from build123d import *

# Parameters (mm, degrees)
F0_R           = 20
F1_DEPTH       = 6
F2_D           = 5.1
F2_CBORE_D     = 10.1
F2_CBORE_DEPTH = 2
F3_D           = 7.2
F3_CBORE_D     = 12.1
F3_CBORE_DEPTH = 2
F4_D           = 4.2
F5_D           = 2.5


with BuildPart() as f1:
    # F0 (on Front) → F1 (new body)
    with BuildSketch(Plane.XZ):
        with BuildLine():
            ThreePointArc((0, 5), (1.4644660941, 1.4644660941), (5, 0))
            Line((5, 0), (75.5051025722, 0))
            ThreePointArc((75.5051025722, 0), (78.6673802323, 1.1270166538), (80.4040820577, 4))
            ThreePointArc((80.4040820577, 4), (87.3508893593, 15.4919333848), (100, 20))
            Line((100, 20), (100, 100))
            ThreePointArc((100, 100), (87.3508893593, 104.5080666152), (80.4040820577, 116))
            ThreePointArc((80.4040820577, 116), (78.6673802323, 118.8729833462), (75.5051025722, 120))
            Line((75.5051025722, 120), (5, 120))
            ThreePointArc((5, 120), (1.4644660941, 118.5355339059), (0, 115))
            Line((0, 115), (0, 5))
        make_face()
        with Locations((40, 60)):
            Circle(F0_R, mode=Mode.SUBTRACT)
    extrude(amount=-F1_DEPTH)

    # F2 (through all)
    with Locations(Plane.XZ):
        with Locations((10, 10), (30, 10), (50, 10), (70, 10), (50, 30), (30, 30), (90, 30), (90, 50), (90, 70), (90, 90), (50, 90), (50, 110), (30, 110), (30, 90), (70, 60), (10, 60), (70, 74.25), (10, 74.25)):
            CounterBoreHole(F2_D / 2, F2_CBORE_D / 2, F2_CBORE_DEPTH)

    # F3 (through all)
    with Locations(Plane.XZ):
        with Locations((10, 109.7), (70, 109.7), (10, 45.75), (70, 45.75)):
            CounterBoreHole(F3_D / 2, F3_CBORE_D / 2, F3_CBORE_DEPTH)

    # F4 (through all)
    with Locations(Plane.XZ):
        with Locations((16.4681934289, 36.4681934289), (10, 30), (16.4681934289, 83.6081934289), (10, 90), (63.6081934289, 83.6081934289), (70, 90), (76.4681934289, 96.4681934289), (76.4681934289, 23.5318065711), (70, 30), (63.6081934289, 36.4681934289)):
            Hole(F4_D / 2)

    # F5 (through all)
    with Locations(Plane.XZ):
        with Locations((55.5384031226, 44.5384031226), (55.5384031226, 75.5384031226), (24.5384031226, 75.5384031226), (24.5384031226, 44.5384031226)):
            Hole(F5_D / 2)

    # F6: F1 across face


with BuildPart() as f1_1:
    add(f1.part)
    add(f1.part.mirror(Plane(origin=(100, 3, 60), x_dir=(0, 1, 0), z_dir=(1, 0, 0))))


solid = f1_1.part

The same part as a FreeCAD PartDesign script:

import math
import FreeCAD as App
import Part
import Sketcher
Q = App.Units.Quantity

doc = App.newDocument("Part")
body = doc.addObject("PartDesign::Body", "Body")

# Sketch on XZ plane
sketch1 = body.newObject("Sketcher::SketchObject", "Sketch")
sketch1.AttachmentSupport = (doc.getObject("XZ_Plane"), [""])
sketch1.MapMode = "FlatFace"
sketch1.addGeometry([
    Part.ArcOfCircle(Part.Circle(App.Vector(5, 5, 0), App.Vector(0, 0, 1), 5), math.radians(180), math.radians(270)),  # 0
    Part.LineSegment(App.Vector(5, 0, 0), App.Vector(76, 0, 0)),  # 1
    Part.ArcOfCircle(Part.Circle(App.Vector(76, 5, 0), App.Vector(0, 0, 1), 5), math.radians(-90), math.radians(-12)),  # 2
    Part.ArcOfCircle(Part.Circle(App.Vector(100, 0, 0), App.Vector(0, 0, 1), 20), math.radians(90), math.radians(168)),  # 3
    Part.LineSegment(App.Vector(100, 20, 0), App.Vector(100, 100, 0)),  # 4
    Part.ArcOfCircle(Part.Circle(App.Vector(100, 120, 0), App.Vector(0, 0, 1), 20), math.radians(-168), math.radians(-90)),  # 5
    Part.ArcOfCircle(Part.Circle(App.Vector(76, 115, 0), App.Vector(0, 0, 1), 5), math.radians(12), math.radians(90)),  # 6
    Part.LineSegment(App.Vector(76, 120, 0), App.Vector(5, 120, 0)),  # 7
    Part.ArcOfCircle(Part.Circle(App.Vector(5, 115, 0), App.Vector(0, 0, 1), 5), math.radians(90), math.radians(180)),  # 8
    Part.LineSegment(App.Vector(0, 115, 0), App.Vector(0, 5, 0)),  # 9
    Part.Circle(App.Vector(40, 60, 0), App.Vector(0, 0, 1), 20),  # 10
], False)
sketch1.addConstraint([
    Sketcher.Constraint("Tangent", 0, 2, 1, 1),
    Sketcher.Constraint("Tangent", 1, 2, 2, 1),
    Sketcher.Constraint("Tangent", 2, 2, 3, 2),
    Sketcher.Constraint("Coincident", 3, 1, 4, 1),
    Sketcher.Constraint("Coincident", 4, 2, 5, 2),
    Sketcher.Constraint("Tangent", 5, 1, 6, 1),
    Sketcher.Constraint("Tangent", 6, 2, 7, 1),
    Sketcher.Constraint("Tangent", 7, 2, 8, 1),
    Sketcher.Constraint("Tangent", 8, 2, 9, 1),
    Sketcher.Constraint("Tangent", 9, 2, 0, 1),
    Sketcher.Constraint("Horizontal", 1),
    Sketcher.Constraint("Vertical", 4),
    Sketcher.Constraint("Horizontal", 7),
    Sketcher.Constraint("Vertical", 9),
    Sketcher.Constraint("Equal", 0, 2),
    Sketcher.Constraint("Equal", 3, 5),
    Sketcher.Constraint("Equal", 2, 6),
    Sketcher.Constraint("Equal", 6, 8),
    Sketcher.Constraint("Equal", 5, 10),
    Sketcher.Constraint("PointOnObject", 3, 3, -1),
    Sketcher.Constraint("PointOnObject", 0, 2, -1),
    Sketcher.Constraint("PointOnObject", 8, 2, -2),
    Sketcher.Constraint("Horizontal", 5, 3, 6, 2),
    Sketcher.Constraint("Vertical", 3, 3, 5, 3),
    Sketcher.Constraint("Vertical", 5, 3, 3, 1),
    Sketcher.Constraint("Diameter", 10, Q("40 mm")),
    Sketcher.Constraint("Radius", 0, Q("5 mm")),
    Sketcher.Constraint("DistanceY", 4, 1, 4, 2, Q("80 mm")),
    Sketcher.Constraint("DistanceX", -1, 1, 3, 3, Q("100 mm")),
    Sketcher.Constraint("DistanceX", -1, 1, 10, 3, Q("40 mm")),
    Sketcher.Constraint("DistanceY", -1, 1, 10, 3, Q("60 mm")),
])
pad1 = body.newObject("PartDesign::Pad", "Pad")
pad1.Profile = sketch1
pad1.Length = 6
pad1.Reversed = True

# Sketch on XZ plane
sketch2 = body.newObject("Sketcher::SketchObject", "Sketch001")
sketch2.AttachmentSupport = (doc.getObject("XZ_Plane"), [""])
sketch2.MapMode = "FlatFace"
sketch2.addGeometry([
    Part.Circle(App.Vector(10, 10, 0), App.Vector(0, 0, 1), 2.5),  # 0
    Part.Circle(App.Vector(30, 10, 0), App.Vector(0, 0, 1), 2.5),  # 1
    Part.Circle(App.Vector(50, 10, 0), App.Vector(0, 0, 1), 2.5),  # 2
    Part.Circle(App.Vector(70, 10, 0), App.Vector(0, 0, 1), 2.5),  # 3
    Part.Circle(App.Vector(50, 30, 0), App.Vector(0, 0, 1), 2.5),  # 4
    Part.Circle(App.Vector(30, 30, 0), App.Vector(0, 0, 1), 2.5),  # 5
    Part.Circle(App.Vector(90, 30, 0), App.Vector(0, 0, 1), 2.5),  # 6
    Part.Circle(App.Vector(90, 50, 0), App.Vector(0, 0, 1), 2.5),  # 7
    Part.Circle(App.Vector(90, 70, 0), App.Vector(0, 0, 1), 2.5),  # 8
    Part.Circle(App.Vector(90, 90, 0), App.Vector(0, 0, 1), 2.5),  # 9
    Part.Circle(App.Vector(50, 90, 0), App.Vector(0, 0, 1), 2.5),  # 10
    Part.Circle(App.Vector(50, 110, 0), App.Vector(0, 0, 1), 2.5),  # 11
    Part.Circle(App.Vector(30, 110, 0), App.Vector(0, 0, 1), 2.5),  # 12
    Part.Circle(App.Vector(30, 90, 0), App.Vector(0, 0, 1), 2.5),  # 13
    Part.Circle(App.Vector(70, 60, 0), App.Vector(0, 0, 1), 2.5),  # 14
    Part.Circle(App.Vector(10, 60, 0), App.Vector(0, 0, 1), 2.5),  # 15
    Part.Circle(App.Vector(70, 74.2, 0), App.Vector(0, 0, 1), 2.5),  # 16
    Part.Circle(App.Vector(10, 74.2, 0), App.Vector(0, 0, 1), 2.5),  # 17
], False)
sketch2.addConstraint([
    Sketcher.Constraint("Equal", 0, 1),
    Sketcher.Constraint("Equal", 1, 2),
    Sketcher.Constraint("Equal", 2, 3),
    Sketcher.Constraint("Equal", 3, 4),
    Sketcher.Constraint("Equal", 4, 5),
    Sketcher.Constraint("Equal", 5, 6),
    Sketcher.Constraint("Equal", 6, 7),
    Sketcher.Constraint("Equal", 7, 8),
    Sketcher.Constraint("Equal", 8, 9),
    Sketcher.Constraint("Equal", 9, 10),
    Sketcher.Constraint("Equal", 10, 11),
    Sketcher.Constraint("Equal", 11, 12),
    Sketcher.Constraint("Equal", 12, 13),
    Sketcher.Constraint("Equal", 13, 14),
    Sketcher.Constraint("Equal", 14, 15),
    Sketcher.Constraint("Equal", 15, 16),
    Sketcher.Constraint("Equal", 16, 17),
    Sketcher.Constraint("Horizontal", 0, 3, 1, 3),
    Sketcher.Constraint("Horizontal", 1, 3, 2, 3),
    Sketcher.Constraint("Horizontal", 2, 3, 3, 3),
    Sketcher.Constraint("Horizontal", 4, 3, 5, 3),
    Sketcher.Constraint("Horizontal", 5, 3, 6, 3),
    Sketcher.Constraint("Horizontal", 9, 3, 10, 3),
    Sketcher.Constraint("Horizontal", 11, 3, 12, 3),
    Sketcher.Constraint("Horizontal", 10, 3, 13, 3),
    Sketcher.Constraint("Horizontal", 14, 3, 15, 3),
    Sketcher.Constraint("Horizontal", 16, 3, 17, 3),
    Sketcher.Constraint("Vertical", 2, 3, 4, 3),
    Sketcher.Constraint("Vertical", 1, 3, 5, 3),
    Sketcher.Constraint("Vertical", 6, 3, 7, 3),
    Sketcher.Constraint("Vertical", 7, 3, 8, 3),
    Sketcher.Constraint("Vertical", 8, 3, 9, 3),
    Sketcher.Constraint("Vertical", 4, 3, 10, 3),
    Sketcher.Constraint("Vertical", 10, 3, 11, 3),
    Sketcher.Constraint("Vertical", 5, 3, 12, 3),
    Sketcher.Constraint("Vertical", 12, 3, 13, 3),
    Sketcher.Constraint("Vertical", 3, 3, 14, 3),
    Sketcher.Constraint("Vertical", 0, 3, 15, 3),
    Sketcher.Constraint("Vertical", 14, 3, 16, 3),
    Sketcher.Constraint("Vertical", 15, 3, 17, 3),
    Sketcher.Constraint("Diameter", 0, Q("5.1 mm")),
    Sketcher.Constraint("DistanceX", -1, 1, 0, 3, Q("10 mm")),
    Sketcher.Constraint("DistanceY", -1, 1, 0, 3, Q("10 mm")),
    Sketcher.Constraint("DistanceX", -1, 1, 1, 3, Q("30 mm")),
    Sketcher.Constraint("DistanceX", -1, 1, 2, 3, Q("50 mm")),
    Sketcher.Constraint("DistanceX", -1, 1, 3, 3, Q("70 mm")),
    Sketcher.Constraint("DistanceY", -1, 1, 4, 3, Q("30 mm")),
    Sketcher.Constraint("DistanceX", -1, 1, 6, 3, Q("90 mm")),
    Sketcher.Constraint("DistanceY", -1, 1, 7, 3, Q("50 mm")),
    Sketcher.Constraint("DistanceY", -1, 1, 8, 3, Q("70 mm")),
    Sketcher.Constraint("DistanceY", -1, 1, 9, 3, Q("90 mm")),
    Sketcher.Constraint("DistanceY", -1, 1, 11, 3, Q("110 mm")),
    Sketcher.Constraint("DistanceY", -1, 1, 14, 3, Q("60 mm")),
    Sketcher.Constraint("DistanceY", -1, 1, 16, 3, Q("74.25 mm")),
])
doc.recompute()
hole = body.newObject("PartDesign::Hole", "Hole")
hole.Profile = sketch2
hole.ThreadType = "None"
hole.Diameter = 5.1
hole.DepthType = "ThroughAll"
hole.HoleCutType = "Counterbore"
hole.HoleCutDiameter = 10.1
hole.HoleCutDepth = 2

# Sketch on XZ plane
sketch3 = body.newObject("Sketcher::SketchObject", "Sketch002")
sketch3.AttachmentSupport = (doc.getObject("XZ_Plane"), [""])
sketch3.MapMode = "FlatFace"
sketch3.addGeometry([
    Part.Circle(App.Vector(10, 109.7, 0), App.Vector(0, 0, 1), 3.6),
    Part.Circle(App.Vector(70, 109.7, 0), App.Vector(0, 0, 1), 3.6),
    Part.Circle(App.Vector(10, 45.8, 0), App.Vector(0, 0, 1), 3.6),
    Part.Circle(App.Vector(70, 45.8, 0), App.Vector(0, 0, 1), 3.6),
], False)
sketch3.addConstraint([
    Sketcher.Constraint("Equal", 0, 1),
    Sketcher.Constraint("Equal", 1, 2),
    Sketcher.Constraint("Equal", 2, 3),
    Sketcher.Constraint("Horizontal", 0, 3, 1, 3),
    Sketcher.Constraint("Horizontal", 2, 3, 3, 3),
    Sketcher.Constraint("Vertical", 0, 3, 2, 3),
    Sketcher.Constraint("Vertical", 1, 3, 3, 3),
    Sketcher.Constraint("Diameter", 0, Q("7.2 mm")),
    Sketcher.Constraint("DistanceX", -1, 1, 0, 3, Q("10 mm")),
    Sketcher.Constraint("DistanceX", -1, 1, 1, 3, Q("70 mm")),
    Sketcher.Constraint("DistanceY", -1, 1, 0, 3, Q("109.7 mm")),
    Sketcher.Constraint("DistanceY", -1, 1, 2, 3, Q("45.75 mm")),
])
doc.recompute()
hole2 = body.newObject("PartDesign::Hole", "Hole001")
hole2.Profile = sketch3
hole2.ThreadType = "None"
hole2.Diameter = 7.2
hole2.DepthType = "ThroughAll"
hole2.HoleCutType = "Counterbore"
hole2.HoleCutDiameter = 12.1
hole2.HoleCutDepth = 2

# Sketch on XZ plane
sketch4 = body.newObject("Sketcher::SketchObject", "Sketch003")
sketch4.AttachmentSupport = (doc.getObject("XZ_Plane"), [""])
sketch4.MapMode = "FlatFace"
sketch4.addGeometry([
    Part.Circle(App.Vector(16.5, 36.5, 0), App.Vector(0, 0, 1), 2.1),  # 0
    Part.Circle(App.Vector(10, 30, 0), App.Vector(0, 0, 1), 2.1),  # 1
    Part.Circle(App.Vector(16.5, 83.6, 0), App.Vector(0, 0, 1), 2.1),  # 2
    Part.Circle(App.Vector(10, 90, 0), App.Vector(0, 0, 1), 2.1),  # 3
    Part.Circle(App.Vector(63.6, 83.6, 0), App.Vector(0, 0, 1), 2.1),  # 4
    Part.Circle(App.Vector(70, 90, 0), App.Vector(0, 0, 1), 2.1),  # 5
    Part.Circle(App.Vector(76.5, 96.5, 0), App.Vector(0, 0, 1), 2.1),  # 6
    Part.Circle(App.Vector(76.5, 23.5, 0), App.Vector(0, 0, 1), 2.1),  # 7
    Part.Circle(App.Vector(70, 30, 0), App.Vector(0, 0, 1), 2.1),  # 8
    Part.Circle(App.Vector(63.6, 36.5, 0), App.Vector(0, 0, 1), 2.1),  # 9
], False)
sketch4.addConstraint([
    Sketcher.Constraint("Equal", 0, 1),
    Sketcher.Constraint("Equal", 1, 2),
    Sketcher.Constraint("Equal", 2, 3),
    Sketcher.Constraint("Equal", 3, 4),
    Sketcher.Constraint("Equal", 4, 5),
    Sketcher.Constraint("Equal", 5, 6),
    Sketcher.Constraint("Equal", 6, 7),
    Sketcher.Constraint("Equal", 7, 8),
    Sketcher.Constraint("Equal", 8, 9),
    Sketcher.Constraint("Horizontal", 2, 3, 4, 3),
    Sketcher.Constraint("Horizontal", 3, 3, 5, 3),
    Sketcher.Constraint("Horizontal", 1, 3, 8, 3),
    Sketcher.Constraint("Horizontal", 0, 3, 9, 3),
    Sketcher.Constraint("Vertical", 0, 3, 2, 3),
    Sketcher.Constraint("Vertical", 1, 3, 3, 3),
    Sketcher.Constraint("Vertical", 6, 3, 7, 3),
    Sketcher.Constraint("Vertical", 5, 3, 8, 3),
    Sketcher.Constraint("Vertical", 4, 3, 9, 3),
    Sketcher.Constraint("Diameter", 0, Q("4.2 mm")),
    Sketcher.Constraint("DistanceX", -1, 1, 1, 3, Q("10 mm")),
    Sketcher.Constraint("DistanceY", -1, 1, 1, 3, Q("30 mm")),
    Sketcher.Constraint("DistanceY", -1, 1, 3, 3, Q("90 mm")),
    Sketcher.Constraint("DistanceX", -1, 1, 5, 3, Q("70 mm")),
    Sketcher.Constraint("DistanceX", 2, 3, 6, 3, Q("60 mm")),
    Sketcher.Constraint("DistanceY", 0, 3, 6, 3, Q("60 mm")),
    Sketcher.Constraint("DistanceY", 0, 3, 2, 3, Q("47.14 mm")),
    Sketcher.Constraint("DistanceX", 2, 3, 4, 3, Q("47.14 mm")),
    Sketcher.Constraint("DistanceX", -1, 1, 0, 3, Q("16.468193 mm")),
    Sketcher.Constraint("DistanceY", -1, 1, 0, 3, Q("36.468193 mm")),
    Sketcher.Constraint("DistanceY", -1, 1, 7, 3, Q("23.531807 mm")),
])
doc.recompute()
hole3 = body.newObject("PartDesign::Hole", "Hole002")
hole3.Profile = sketch4
hole3.ThreadType = "None"
hole3.Diameter = 4.2
hole3.DepthType = "ThroughAll"

# Sketch on XZ plane
sketch5 = body.newObject("Sketcher::SketchObject", "Sketch004")
sketch5.AttachmentSupport = (doc.getObject("XZ_Plane"), [""])
sketch5.MapMode = "FlatFace"
sketch5.addGeometry([
    Part.Circle(App.Vector(55.5, 44.5, 0), App.Vector(0, 0, 1), 1.2),
    Part.Circle(App.Vector(55.5, 75.5, 0), App.Vector(0, 0, 1), 1.2),
    Part.Circle(App.Vector(24.5, 75.5, 0), App.Vector(0, 0, 1), 1.2),
    Part.Circle(App.Vector(24.5, 44.5, 0), App.Vector(0, 0, 1), 1.2),
], False)
sketch5.addConstraint([
    Sketcher.Constraint("Equal", 0, 1),
    Sketcher.Constraint("Equal", 1, 2),
    Sketcher.Constraint("Equal", 2, 3),
    Sketcher.Constraint("Horizontal", 1, 3, 2, 3),
    Sketcher.Constraint("Horizontal", 0, 3, 3, 3),
    Sketcher.Constraint("Vertical", 0, 3, 1, 3),
    Sketcher.Constraint("Vertical", 2, 3, 3, 3),
    Sketcher.Constraint("Diameter", 0, Q("2.5 mm")),
    Sketcher.Constraint("DistanceY", 0, 3, 1, 3, Q("31 mm")),
    Sketcher.Constraint("DistanceX", 2, 3, 1, 3, Q("31 mm")),
    Sketcher.Constraint("DistanceX", -1, 1, 0, 3, Q("55.538403 mm")),
    Sketcher.Constraint("DistanceY", -1, 1, 0, 3, Q("44.538403 mm")),
])
doc.recompute()
hole4 = body.newObject("PartDesign::Hole", "Hole003")
hole4.Profile = sketch5
hole4.ThreadType = "None"
hole4.Diameter = 2.5
hole4.DepthType = "ThroughAll"
body2 = doc.addObject("PartDesign::Body", "Body001")
doc.recompute()

body2.BaseFeature = body
doc.recompute()

mirroring = doc.addObject("Part::Mirroring", "Mirroring")
mirroring.Source = body
mirroring.Base = App.Vector(100, 3, 60)
mirroring.Normal = App.Vector(1, 0, 0)
body3 = doc.addObject("PartDesign::Body", "Body002")
body3.BaseFeature = mirroring
boolean = body2.newObject("PartDesign::Boolean", "Boolean")
boolean.Type = "Fuse"
boolean.addObjects([body3])
doc.recompute()
mirroring.Visibility = False

doc.recompute()
